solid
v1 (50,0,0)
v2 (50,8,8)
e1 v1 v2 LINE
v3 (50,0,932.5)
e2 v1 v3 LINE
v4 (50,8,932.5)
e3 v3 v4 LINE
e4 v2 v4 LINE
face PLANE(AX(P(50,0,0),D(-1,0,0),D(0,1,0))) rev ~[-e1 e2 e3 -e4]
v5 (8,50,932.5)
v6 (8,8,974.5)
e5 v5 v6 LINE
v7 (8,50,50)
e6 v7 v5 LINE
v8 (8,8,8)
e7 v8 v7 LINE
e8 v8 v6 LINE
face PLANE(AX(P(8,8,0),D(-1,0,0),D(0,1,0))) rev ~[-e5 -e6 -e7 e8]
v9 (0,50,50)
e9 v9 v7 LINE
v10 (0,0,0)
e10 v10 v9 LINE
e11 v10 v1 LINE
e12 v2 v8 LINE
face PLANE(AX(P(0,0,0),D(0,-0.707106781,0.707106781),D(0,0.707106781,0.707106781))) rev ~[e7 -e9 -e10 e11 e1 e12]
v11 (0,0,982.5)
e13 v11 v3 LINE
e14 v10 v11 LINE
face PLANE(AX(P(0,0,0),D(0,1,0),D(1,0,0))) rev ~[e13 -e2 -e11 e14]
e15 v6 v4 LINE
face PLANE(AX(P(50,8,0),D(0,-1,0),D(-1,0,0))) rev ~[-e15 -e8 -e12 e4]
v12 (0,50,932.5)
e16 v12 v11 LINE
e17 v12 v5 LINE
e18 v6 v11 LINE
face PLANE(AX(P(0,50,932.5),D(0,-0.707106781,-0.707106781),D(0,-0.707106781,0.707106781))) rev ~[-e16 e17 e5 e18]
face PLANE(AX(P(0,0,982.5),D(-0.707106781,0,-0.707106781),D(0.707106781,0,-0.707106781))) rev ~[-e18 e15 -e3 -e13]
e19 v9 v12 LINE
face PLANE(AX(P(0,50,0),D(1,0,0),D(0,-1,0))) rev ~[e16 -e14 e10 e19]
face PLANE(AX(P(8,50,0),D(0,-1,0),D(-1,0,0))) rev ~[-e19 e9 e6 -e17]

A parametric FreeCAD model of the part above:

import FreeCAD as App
import Part
import Sketcher

V = App.Vector


def add_polygon(sketch, points):
    """Adds a closed chain of lines whose ends are joined by coincident constraints."""
    first, n = sketch.GeometryCount, len(points)
    for a, b in zip(points, points[1:] + points[:1]):
        sketch.addGeometry(Part.LineSegment(App.Vector(*a, 0), App.Vector(*b, 0)), False)
    for i in range(n):
        sketch.addConstraint(Sketcher.Constraint("Coincident", first + i, 2, first + (i + 1) % n, 1))

doc = App.newDocument("Part")
body = doc.addObject("PartDesign::Body", "Body")

# Sketch on XY plane
sketch1 = body.newObject("Sketcher::SketchObject", "Sketch")
sketch1.AttachmentSupport = (doc.getObject("XY_Plane"), [""])
sketch1.MapMode = "FlatFace"
add_polygon(sketch1, [(0, 50), (0, 0), (50, 0), (50, 8), (8, 8), (8, 50)])  # lines 0-5
sketch1.addConstraint([
    Sketcher.Constraint("Vertical", 0),
    Sketcher.Constraint("Horizontal", 1),
    Sketcher.Constraint("Vertical", 2),
    Sketcher.Constraint("Horizontal", 3),
    Sketcher.Constraint("Vertical", 4),
    Sketcher.Constraint("Horizontal", 5),
    Sketcher.Constraint("Coincident", 0, 2, -1, 1),
    Sketcher.Constraint("Equal", 1, 0),
    Sketcher.Constraint("Equal", 5, 2),
    Sketcher.Constraint("DistanceX", 1, 1, 1, 2, 50.0),
    Sketcher.Constraint("DistanceX", 3, 2, 3, 1, 42.0),
])
pad1 = body.newObject("PartDesign::Pad", "Pad")
pad1.Profile = sketch1
pad1.Length = 982.5

# Sketch on XZ plane
sketch2 = body.newObject("Sketcher::SketchObject", "Sketch001")
sketch2.AttachmentSupport = (doc.getObject("XZ_Plane"), [""])
sketch2.MapMode = "FlatFace"
add_polygon(sketch2, [(50, 982), (0, 982), (50, 932)])  # lines 0-2
sketch2.addConstraint([
    Sketcher.Constraint("Horizontal", 0),
    Sketcher.Constraint("Vertical", 2),
    Sketcher.Constraint("PointOnObject", 0, 2, -2),
    Sketcher.Constraint("Equal", 0, 2),
    Sketcher.Constraint("DistanceX", 0, 2, 0, 1, 50.0),
    Sketcher.Constraint("DistanceY", -1, 1, 0, 2, 982.5),
])
pocket1 = body.newObject("PartDesign::Pocket", "Pocket")
pocket1.Profile = sketch2
pocket1.Length = 8

# Sketch on YZ plane
sketch3 = body.newObject("Sketcher::SketchObject", "Sketch002")
sketch3.AttachmentSupport = (doc.getObject("YZ_Plane"), [""])
sketch3.MapMode = "FlatFace"
add_polygon(sketch3, [(50, 932), (0, 982), (50, 982)])  # lines 0-2
sketch3.addConstraint([
    Sketcher.Constraint("Horizontal", 1),
    Sketcher.Constraint("Vertical", 2),
    Sketcher.Constraint("PointOnObject", 0, 2, -2),
    Sketcher.Constraint("Equal", 1, 2),
    Sketcher.Constraint("DistanceX", 1, 1, 1, 2, 50.0),
    Sketcher.Constraint("DistanceY", -1, 1, 0, 2, 982.5),
])
pocket2 = body.newObject("PartDesign::Pocket", "Pocket001")
pocket2.Profile = sketch3
pocket2.Type = "ThroughAll"
pocket2.Reversed = True

# Sketch on YZ plane
sketch4 = body.newObject("Sketcher::SketchObject", "Sketch003")
sketch4.AttachmentSupport = (doc.getObject("YZ_Plane"), [""])
sketch4.MapMode = "FlatFace"
add_polygon(sketch4, [(50, 0), (0, 0), (50, 50)])  # lines 0-2
sketch4.addConstraint([
    Sketcher.Constraint("Horizontal", 0),
    Sketcher.Constraint("Vertical", 2),
    Sketcher.Constraint("Coincident", 0, 2, -1, 1),
    Sketcher.Constraint("Equal", 0, 2),
    Sketcher.Constraint("DistanceX", 0, 2, 0, 1, 50.0),
])
pocket3 = body.newObject("PartDesign::Pocket", "Pocket002")
pocket3.Profile = sketch4
pocket3.Type = "ThroughAll"
pocket3.Reversed = True

doc.recompute()
